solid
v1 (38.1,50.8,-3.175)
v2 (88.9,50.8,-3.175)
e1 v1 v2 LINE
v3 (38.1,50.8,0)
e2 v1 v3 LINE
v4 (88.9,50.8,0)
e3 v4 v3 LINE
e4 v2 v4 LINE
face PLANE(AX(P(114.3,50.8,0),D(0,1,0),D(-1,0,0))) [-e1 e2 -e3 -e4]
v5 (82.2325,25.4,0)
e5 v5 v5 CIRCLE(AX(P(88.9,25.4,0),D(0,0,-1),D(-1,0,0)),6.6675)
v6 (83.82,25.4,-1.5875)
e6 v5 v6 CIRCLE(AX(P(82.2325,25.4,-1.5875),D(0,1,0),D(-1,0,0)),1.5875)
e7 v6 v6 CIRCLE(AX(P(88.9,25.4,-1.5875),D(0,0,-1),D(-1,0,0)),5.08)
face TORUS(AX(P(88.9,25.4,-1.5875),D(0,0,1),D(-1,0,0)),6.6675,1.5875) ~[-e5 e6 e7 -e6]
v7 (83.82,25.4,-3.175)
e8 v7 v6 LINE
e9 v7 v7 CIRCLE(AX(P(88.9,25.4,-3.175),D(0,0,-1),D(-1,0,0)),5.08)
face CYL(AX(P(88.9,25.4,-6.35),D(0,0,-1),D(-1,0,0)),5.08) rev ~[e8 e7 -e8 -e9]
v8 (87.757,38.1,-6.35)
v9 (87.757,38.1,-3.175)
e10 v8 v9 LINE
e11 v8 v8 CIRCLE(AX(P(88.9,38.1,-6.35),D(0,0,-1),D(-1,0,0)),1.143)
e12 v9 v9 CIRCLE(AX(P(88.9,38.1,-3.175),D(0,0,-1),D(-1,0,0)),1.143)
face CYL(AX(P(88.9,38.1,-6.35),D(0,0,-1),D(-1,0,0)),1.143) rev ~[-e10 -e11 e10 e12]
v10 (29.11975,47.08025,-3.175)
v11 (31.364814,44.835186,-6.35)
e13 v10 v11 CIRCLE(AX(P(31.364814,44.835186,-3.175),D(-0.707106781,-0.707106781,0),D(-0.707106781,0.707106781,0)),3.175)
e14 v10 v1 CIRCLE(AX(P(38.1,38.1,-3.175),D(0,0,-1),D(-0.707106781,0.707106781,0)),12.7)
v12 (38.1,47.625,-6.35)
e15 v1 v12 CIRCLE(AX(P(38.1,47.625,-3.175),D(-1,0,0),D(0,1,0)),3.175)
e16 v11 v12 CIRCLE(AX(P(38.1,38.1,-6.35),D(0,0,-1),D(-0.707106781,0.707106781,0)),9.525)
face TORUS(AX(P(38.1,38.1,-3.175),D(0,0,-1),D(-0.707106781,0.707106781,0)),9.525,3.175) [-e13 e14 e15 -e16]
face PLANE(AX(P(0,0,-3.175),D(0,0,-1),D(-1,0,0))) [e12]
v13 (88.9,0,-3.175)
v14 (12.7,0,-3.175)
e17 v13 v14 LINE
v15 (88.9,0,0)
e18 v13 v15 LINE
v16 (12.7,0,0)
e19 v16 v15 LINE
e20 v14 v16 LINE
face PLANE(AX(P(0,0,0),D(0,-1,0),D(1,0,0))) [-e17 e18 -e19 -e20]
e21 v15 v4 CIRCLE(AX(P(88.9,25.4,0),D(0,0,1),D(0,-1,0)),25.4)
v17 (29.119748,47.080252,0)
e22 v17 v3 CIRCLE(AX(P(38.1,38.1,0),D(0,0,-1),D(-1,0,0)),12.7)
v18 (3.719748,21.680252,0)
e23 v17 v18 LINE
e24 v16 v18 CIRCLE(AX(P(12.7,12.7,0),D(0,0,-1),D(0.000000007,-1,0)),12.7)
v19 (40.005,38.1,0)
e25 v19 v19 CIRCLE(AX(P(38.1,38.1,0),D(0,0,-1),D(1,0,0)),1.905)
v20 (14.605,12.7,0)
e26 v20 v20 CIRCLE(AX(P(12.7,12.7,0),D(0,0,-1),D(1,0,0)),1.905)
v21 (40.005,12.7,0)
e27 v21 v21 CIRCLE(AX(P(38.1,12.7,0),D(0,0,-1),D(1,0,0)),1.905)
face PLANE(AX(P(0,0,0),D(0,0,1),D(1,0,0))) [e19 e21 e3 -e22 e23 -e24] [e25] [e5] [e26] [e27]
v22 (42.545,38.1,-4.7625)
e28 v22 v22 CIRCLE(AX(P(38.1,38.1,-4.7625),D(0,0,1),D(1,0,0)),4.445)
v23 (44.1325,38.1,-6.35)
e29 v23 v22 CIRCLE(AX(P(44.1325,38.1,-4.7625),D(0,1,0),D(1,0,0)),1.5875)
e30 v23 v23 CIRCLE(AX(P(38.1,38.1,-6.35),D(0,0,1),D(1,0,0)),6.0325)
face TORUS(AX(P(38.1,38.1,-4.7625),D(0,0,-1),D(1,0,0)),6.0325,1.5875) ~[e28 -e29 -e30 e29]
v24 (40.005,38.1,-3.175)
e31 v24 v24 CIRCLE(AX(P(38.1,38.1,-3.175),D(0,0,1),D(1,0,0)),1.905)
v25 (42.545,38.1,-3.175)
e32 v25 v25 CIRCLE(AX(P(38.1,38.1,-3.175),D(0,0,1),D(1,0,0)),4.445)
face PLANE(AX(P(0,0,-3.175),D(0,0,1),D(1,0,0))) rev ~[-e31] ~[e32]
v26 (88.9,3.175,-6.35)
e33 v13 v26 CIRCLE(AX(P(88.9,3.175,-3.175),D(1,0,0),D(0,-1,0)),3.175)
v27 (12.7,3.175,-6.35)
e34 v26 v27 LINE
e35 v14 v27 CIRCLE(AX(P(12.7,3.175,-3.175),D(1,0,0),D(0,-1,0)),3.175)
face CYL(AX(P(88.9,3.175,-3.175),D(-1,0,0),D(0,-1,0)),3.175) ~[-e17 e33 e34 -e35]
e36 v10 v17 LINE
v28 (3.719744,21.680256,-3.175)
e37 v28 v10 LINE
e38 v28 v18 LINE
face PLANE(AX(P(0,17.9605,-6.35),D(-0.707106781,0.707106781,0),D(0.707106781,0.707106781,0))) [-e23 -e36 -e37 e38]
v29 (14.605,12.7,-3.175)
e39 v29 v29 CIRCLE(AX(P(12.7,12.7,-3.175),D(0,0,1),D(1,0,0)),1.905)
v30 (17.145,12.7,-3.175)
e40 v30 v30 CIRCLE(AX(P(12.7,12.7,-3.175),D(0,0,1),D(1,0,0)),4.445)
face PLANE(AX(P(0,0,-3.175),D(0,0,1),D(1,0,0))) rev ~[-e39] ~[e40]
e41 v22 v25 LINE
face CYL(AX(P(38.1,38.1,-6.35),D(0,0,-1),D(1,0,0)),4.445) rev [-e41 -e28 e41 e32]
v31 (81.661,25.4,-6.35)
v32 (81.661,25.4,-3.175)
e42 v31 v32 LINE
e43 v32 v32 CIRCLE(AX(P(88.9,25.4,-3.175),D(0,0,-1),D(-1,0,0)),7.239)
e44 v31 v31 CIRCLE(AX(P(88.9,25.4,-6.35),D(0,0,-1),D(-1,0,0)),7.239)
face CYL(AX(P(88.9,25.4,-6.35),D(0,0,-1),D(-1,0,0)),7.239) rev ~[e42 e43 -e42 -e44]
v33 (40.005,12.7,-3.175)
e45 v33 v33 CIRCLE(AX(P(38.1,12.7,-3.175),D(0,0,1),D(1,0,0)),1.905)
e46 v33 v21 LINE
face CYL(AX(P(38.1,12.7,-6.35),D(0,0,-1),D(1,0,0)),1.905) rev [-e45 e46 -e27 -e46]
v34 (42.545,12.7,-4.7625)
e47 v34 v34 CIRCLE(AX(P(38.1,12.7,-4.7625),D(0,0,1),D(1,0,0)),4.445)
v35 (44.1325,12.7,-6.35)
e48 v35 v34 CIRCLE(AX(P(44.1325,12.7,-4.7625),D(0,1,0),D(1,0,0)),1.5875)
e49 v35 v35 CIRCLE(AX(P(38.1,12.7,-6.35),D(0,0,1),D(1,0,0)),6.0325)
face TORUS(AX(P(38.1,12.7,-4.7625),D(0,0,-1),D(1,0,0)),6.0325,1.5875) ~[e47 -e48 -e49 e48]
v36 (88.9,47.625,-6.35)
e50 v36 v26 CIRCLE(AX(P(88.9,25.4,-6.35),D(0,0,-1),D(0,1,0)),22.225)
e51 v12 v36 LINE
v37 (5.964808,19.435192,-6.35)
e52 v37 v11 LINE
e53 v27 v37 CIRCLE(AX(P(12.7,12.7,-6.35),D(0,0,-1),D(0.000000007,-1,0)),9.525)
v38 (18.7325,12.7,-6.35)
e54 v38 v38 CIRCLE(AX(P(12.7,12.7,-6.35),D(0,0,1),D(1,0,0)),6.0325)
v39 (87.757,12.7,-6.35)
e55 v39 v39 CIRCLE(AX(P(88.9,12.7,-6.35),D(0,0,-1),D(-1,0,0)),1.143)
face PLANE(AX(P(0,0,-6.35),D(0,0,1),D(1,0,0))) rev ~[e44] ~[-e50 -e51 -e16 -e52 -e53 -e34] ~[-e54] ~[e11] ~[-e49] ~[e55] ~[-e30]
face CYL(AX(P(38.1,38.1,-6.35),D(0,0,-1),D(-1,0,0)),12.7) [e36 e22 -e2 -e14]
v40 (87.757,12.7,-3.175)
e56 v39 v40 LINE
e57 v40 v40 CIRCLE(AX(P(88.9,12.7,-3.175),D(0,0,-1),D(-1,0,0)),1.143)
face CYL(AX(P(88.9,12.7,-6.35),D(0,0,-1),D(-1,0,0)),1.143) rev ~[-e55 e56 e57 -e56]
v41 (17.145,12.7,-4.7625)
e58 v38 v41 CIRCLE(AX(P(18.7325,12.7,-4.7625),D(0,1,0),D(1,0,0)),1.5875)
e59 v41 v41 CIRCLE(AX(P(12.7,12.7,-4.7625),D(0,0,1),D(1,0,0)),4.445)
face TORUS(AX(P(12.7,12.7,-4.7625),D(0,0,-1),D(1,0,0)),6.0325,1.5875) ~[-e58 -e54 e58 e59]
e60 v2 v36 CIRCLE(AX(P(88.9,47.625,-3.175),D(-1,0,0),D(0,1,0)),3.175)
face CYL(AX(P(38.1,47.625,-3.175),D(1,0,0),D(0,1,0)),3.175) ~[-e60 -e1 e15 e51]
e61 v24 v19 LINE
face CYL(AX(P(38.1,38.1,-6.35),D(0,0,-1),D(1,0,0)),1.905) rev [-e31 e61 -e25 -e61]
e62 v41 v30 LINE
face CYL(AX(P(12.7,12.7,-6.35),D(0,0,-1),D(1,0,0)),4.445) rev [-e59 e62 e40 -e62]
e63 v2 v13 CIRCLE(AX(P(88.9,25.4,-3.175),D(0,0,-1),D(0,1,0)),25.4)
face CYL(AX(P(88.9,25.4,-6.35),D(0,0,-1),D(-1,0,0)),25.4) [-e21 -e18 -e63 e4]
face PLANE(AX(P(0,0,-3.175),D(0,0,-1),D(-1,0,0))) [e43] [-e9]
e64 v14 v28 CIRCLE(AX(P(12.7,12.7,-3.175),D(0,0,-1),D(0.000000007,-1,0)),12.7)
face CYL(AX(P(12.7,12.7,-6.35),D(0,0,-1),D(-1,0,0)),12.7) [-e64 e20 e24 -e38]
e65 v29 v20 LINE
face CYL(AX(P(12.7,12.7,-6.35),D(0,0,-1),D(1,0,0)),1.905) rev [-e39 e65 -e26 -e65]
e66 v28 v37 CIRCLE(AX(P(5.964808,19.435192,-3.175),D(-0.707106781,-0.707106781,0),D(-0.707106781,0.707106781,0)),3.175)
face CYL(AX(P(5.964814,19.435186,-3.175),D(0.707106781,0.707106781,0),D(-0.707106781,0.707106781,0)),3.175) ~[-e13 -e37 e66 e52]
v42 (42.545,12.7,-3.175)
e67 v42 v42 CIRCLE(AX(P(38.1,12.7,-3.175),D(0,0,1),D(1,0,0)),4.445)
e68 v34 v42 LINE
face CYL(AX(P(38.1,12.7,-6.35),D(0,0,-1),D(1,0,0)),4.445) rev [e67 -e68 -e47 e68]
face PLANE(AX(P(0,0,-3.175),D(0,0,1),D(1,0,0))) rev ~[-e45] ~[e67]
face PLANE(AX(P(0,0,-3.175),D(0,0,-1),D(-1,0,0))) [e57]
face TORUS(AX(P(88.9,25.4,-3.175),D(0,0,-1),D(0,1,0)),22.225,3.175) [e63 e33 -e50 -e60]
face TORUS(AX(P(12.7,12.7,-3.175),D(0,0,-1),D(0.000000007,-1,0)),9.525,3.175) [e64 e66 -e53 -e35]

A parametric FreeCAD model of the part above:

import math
import FreeCAD as App
import Part
import Sketcher
Q = App.Units.Quantity


def edges_at(feature, points):
    """Names of the edges that pass closest to the given points."""
    edges = feature.Shape.Edges
    near = lambda p: min(range(len(edges)), key=lambda i: edges[i].distToShape(Part.Vertex(*p))[0])
    return sorted({f"Edge{near(p) + 1}" for p in points})

doc = App.newDocument("Part")
body = doc.addObject("PartDesign::Body", "Body")

# Sketch on XY plane
sketch1 = doc.addObject("Sketcher::SketchObject", "Sketch")
body.addObject(sketch1)
sketch1.AttachmentSupport = (doc.XY_Plane, [""])
sketch1.MapMode = "FlatFace"
sketch1.addGeometry([
    Part.LineSegment(App.Vector(0, 50.8, 0), App.Vector(0, 0, 0)),
    Part.LineSegment(App.Vector(0, 0, 0), App.Vector(114.3, 0, 0)),
    Part.LineSegment(App.Vector(114.3, 0, 0), App.Vector(114.3, 50.8, 0)),
    Part.LineSegment(App.Vector(114.3, 50.8, 0), App.Vector(0, 50.8, 0)),
], False)
sketch1.addConstraint([
    Sketcher.Constraint("Coincident", 0, 2, 1, 1),
    Sketcher.Constraint("Coincident", 1, 2, 2, 1),
    Sketcher.Constraint("Coincident", 2, 2, 3, 1),
    Sketcher.Constraint("Coincident", 3, 2, 0, 1),
    Sketcher.Constraint("Vertical", 0),
    Sketcher.Constraint("Horizontal", 1),
    Sketcher.Constraint("Vertical", 2),
    Sketcher.Constraint("Horizontal", 3),
    Sketcher.Constraint("Coincident", 0, 2, -1, 1),
    Sketcher.Constraint("DistanceY", 0, 2, 0, 1, Q("2 in")),
    Sketcher.Constraint("DistanceX", 1, 1, 1, 2, Q("4.5 in")),
])
pad1 = doc.addObject("PartDesign::Pad", "Pad")
body.addObject(pad1)
pad1.Profile = sketch1
pad1.Length = Q("0.25 in")
pad1.Reversed = True

# Sketch on XY plane
sketch2 = doc.addObject("Sketcher::SketchObject", "Sketch001")
body.addObject(sketch2)
sketch2.AttachmentSupport = (doc.XY_Plane, [""])
sketch2.MapMode = "FlatFace"
sketch2.AttachmentOffset = App.Placement(App.Vector(0, 0, -0.25 * 25.4), App.Rotation())
sketch2.addGeometry([
    Part.LineSegment(App.Vector(0, 17.9605, 0), App.Vector(32.8395, 50.8, 0)),  # 0
    Part.LineSegment(App.Vector(32.8395, 50.8, 0), App.Vector(0, 50.8, 0)),  # 1
    Part.LineSegment(App.Vector(0, 50.8, 0), App.Vector(0, 17.9605, 0)),  # 2
    Part.Circle(App.Vector(12.7, 12.7, 0), App.Vector(0, 0, 1), 1.905),  # 3
    Part.Circle(App.Vector(38.1, 12.7, 0), App.Vector(0, 0, 1), 1.905),  # 4
    Part.Circle(App.Vector(38.1, 38.1, 0), App.Vector(0, 0, 1), 1.905),  # 5
], False)
sketch2.addConstraint([
    Sketcher.Constraint("Coincident", 0, 2, 1, 1),
    Sketcher.Constraint("Coincident", 1, 2, 2, 1),
    Sketcher.Constraint("Coincident", 2, 2, 0, 1),
    Sketcher.Constraint("Horizontal", 1),
    Sketcher.Constraint("Vertical", 2),
    Sketcher.Constraint("Equal", 3, 4),
    Sketcher.Constraint("Equal", 4, 5),
    Sketcher.Constraint("PointOnObject", 1, 2, -2),
    Sketcher.Constraint("Horizontal", 3, 3, 4, 3),
    Sketcher.Constraint("Vertical", 4, 3, 5, 3),
    Sketcher.Constraint("Equal", 1, 2),
    Sketcher.Constraint("Diameter", 3, Q("0.15 in")),
    Sketcher.Constraint("DistanceX", 3, 3, 4, 3, Q("1 in")),
    Sketcher.Constraint("DistanceY", 4, 3, 5, 3, Q("1 in")),
    Sketcher.Constraint("DistanceX", -1, 1, 3, 3, Q("0.5 in")),
    Sketcher.Constraint("DistanceY", -1, 1, 3, 3, Q("0.5 in")),
    Sketcher.Constraint("DistanceY", 5, 3, 0, 2, Q("0.5 in")),
    Sketcher.Constraint("DistanceX", 1, 2, 1, 1, Q("1.2929 in")),
])
pocket1 = doc.addObject("PartDesign::Pocket", "Pocket")
body.addObject(pocket1)
pocket1.Profile = sketch2
pocket1.Type = "ThroughAll"
pocket1.Reversed = True

# Sketch on XY plane
sketch3 = doc.addObject("Sketcher::SketchObject", "Sketch002")
body.addObject(sketch3)
sketch3.AttachmentSupport = (doc.XY_Plane, [""])
sketch3.MapMode = "FlatFace"
sketch3.AttachmentOffset = App.Placement(App.Vector(0, 0, -0.25 * 25.4), App.Rotation())
sketch3.addGeometry([
    Part.Circle(App.Vector(12.7, 12.7, 0), App.Vector(0, 0, 1), 4.445),  # 0
    Part.Circle(App.Vector(12.7, 12.7, 0), App.Vector(0, 0, 1), 1.905),  # 1
    Part.Circle(App.Vector(38.1, 12.7, 0), App.Vector(0, 0, 1), 4.445),  # 2
    Part.Circle(App.Vector(38.1, 12.7, 0), App.Vector(0, 0, 1), 1.905),  # 3
    Part.Circle(App.Vector(38.1, 38.1, 0), App.Vector(0, 0, 1), 4.445),  # 4
    Part.Circle(App.Vector(38.1, 38.1, 0), App.Vector(0, 0, 1), 1.905),  # 5
], False)
sketch3.addConstraint([
    Sketcher.Constraint("Coincident", 1, 3, 0, 3),
    Sketcher.Constraint("Coincident", 3, 3, 2, 3),
    Sketcher.Constraint("Coincident", 5, 3, 4, 3),
    Sketcher.Constraint("Equal", 0, 2),
    Sketcher.Constraint("Equal", 1, 3),
    Sketcher.Constraint("Equal", 2, 4),
    Sketcher.Constraint("Equal", 3, 5),
    Sketcher.Constraint("Horizontal", 1, 3, 2, 3),
    Sketcher.Constraint("Vertical", 3, 3, 4, 3),
    Sketcher.Constraint("Diameter", 0, Q("0.35 in")),
    Sketcher.Constraint("Diameter", 1, Q("0.15 in")),
    Sketcher.Constraint("DistanceX", 0, 3, 2, 3, Q("1 in")),
    Sketcher.Constraint("DistanceY", 2, 3, 4, 3, Q("1 in")),
    Sketcher.Constraint("DistanceX", -1, 1, 0, 3, Q("0.5 in")),
    Sketcher.Constraint("DistanceY", -1, 1, 0, 3, Q("0.5 in")),
])
pocket2 = doc.addObject("PartDesign::Pocket", "Pocket001")
body.addObject(pocket2)
pocket2.Profile = sketch3
pocket2.Length = Q("0.125 in")
pocket2.Reversed = True

# Sketch on XY plane
sketch4 = doc.addObject("Sketcher::SketchObject", "Sketch003")
body.addObject(sketch4)
sketch4.AttachmentSupport = (doc.XY_Plane, [""])
sketch4.MapMode = "FlatFace"
sketch4.AttachmentOffset = App.Placement(App.Vector(0, 0, -0.25 * 25.4), App.Rotation())
sketch4.addGeometry(Part.Circle(App.Vector(88.9, 25.4, 0), App.Vector(0, 0, 1), 5.08), False)
sketch4.addConstraint([
    Sketcher.Constraint("Diameter", 0, Q("0.4 in")),
    Sketcher.Constraint("DistanceY", -1, 1, 0, 3, Q("1 in")),
    Sketcher.Constraint("DistanceX", -1, 1, 0, 3, Q("3.5 in")),
])
pocket3 = doc.addObject("PartDesign::Pocket", "Pocket002")
body.addObject(pocket3)
pocket3.Profile = sketch4
pocket3.Type = "ThroughAll"
pocket3.Reversed = True

# Sketch on XY plane
sketch5 = doc.addObject("Sketcher::SketchObject", "Sketch004")
body.addObject(sketch5)
sketch5.AttachmentSupport = (doc.XY_Plane, [""])
sketch5.MapMode = "FlatFace"
sketch5.AttachmentOffset = App.Placement(App.Vector(0, 0, -0.25 * 25.4), App.Rotation())
sketch5.addGeometry([
    Part.Circle(App.Vector(88.9, 25.4, 0), App.Vector(0, 0, 1), 7.239),
    Part.Circle(App.Vector(88.9, 25.4, 0), App.Vector(0, 0, 1), 5.08),
    Part.Circle(App.Vector(88.9, 38.1, 0), App.Vector(0, 0, 1), 1.143),
    Part.Circle(App.Vector(88.9, 12.7, 0), App.Vector(0, 0, 1), 1.143),
], False)
sketch5.addConstraint([
    Sketcher.Constraint("Coincident", 1, 3, 0, 3),
    Sketcher.Constraint("Equal", 2, 3),
    Sketcher.Constraint("Vertical", 1, 3, 2, 3),
    Sketcher.Constraint("Vertical", 2, 3, 3, 3),
    Sketcher.Constraint("Diameter", 1, Q("0.4 in")),
    Sketcher.Constraint("Diameter", 0, Q("0.57 in")),
    Sketcher.Constraint("Diameter", 2, Q("0.09 in")),
    Sketcher.Constraint("DistanceY", -1, 1, 0, 3, Q("1 in")),
    Sketcher.Constraint("DistanceY", 3, 3, 2, 3, Q("1 in")),
    Sketcher.Constraint("DistanceY", -1, 1, 3, 3, Q("0.5 in")),
    Sketcher.Constraint("DistanceX", -1, 1, 0, 3, Q("3.5 in")),
])
pocket4 = doc.addObject("PartDesign::Pocket", "Pocket003")
body.addObject(pocket4)
pocket4.Profile = sketch5
pocket4.Length = Q("0.125 in")
pocket4.Reversed = True

# Sketch on XY plane
sketch6 = doc.addObject("Sketcher::SketchObject", "Sketch005")
body.addObject(sketch6)
sketch6.AttachmentSupport = (doc.XY_Plane, [""])
sketch6.MapMode = "FlatFace"
sketch6.AttachmentOffset = App.Placement(App.Vector(0, 0, -0.25 * 25.4), App.Rotation())
sketch6.addGeometry([
    Part.LineSegment(App.Vector(0, 12.7, 0), App.Vector(0, 17.9605, 0)),  # 0
    Part.LineSegment(App.Vector(0, 17.9605, 0), App.Vector(3.71975, 21.68025, 0)),  # 1
    Part.ArcOfCircle(Part.Circle(App.Vector(12.7, 12.7, 0), App.Vector(0, 0, 1), 12.7), math.radians(135), math.radians(180)),  # 2
    Part.LineSegment(App.Vector(0, 0, 0), App.Vector(0, 12.7, 0)),  # 3
    Part.ArcOfCircle(Part.Circle(App.Vector(12.7, 12.7, 0), App.Vector(0, 0, 1), 12.7), math.radians(180), math.radians(270)),  # 4
    Part.LineSegment(App.Vector(12.7, 0, 0), App.Vector(0, 0, 0)),  # 5
    Part.ArcOfCircle(Part.Circle(App.Vector(38.1, 38.1, 0), App.Vector(0, 0, 1), 12.7), math.radians(90), math.radians(135)),  # 6
    Part.LineSegment(App.Vector(29.11975, 47.08025, 0), App.Vector(32.8395, 50.8, 0)),  # 7
    Part.LineSegment(App.Vector(32.8395, 50.8, 0), App.Vector(38.1, 50.8, 0)),  # 8
    Part.LineSegment(App.Vector(114.3, 0, 0), App.Vector(88.9, 0, 0)),  # 9
    Part.ArcOfCircle(Part.Circle(App.Vector(88.9, 25.4, 0), App.Vector(0, 0, 1), 25.4), math.radians(-90), math.radians(0)),  # 10
    Part.LineSegment(App.Vector(114.3, 25.4, 0), App.Vector(114.3, 0, 0)),  # 11
    Part.ArcOfCircle(Part.Circle(App.Vector(88.9, 25.4, 0), App.Vector(0, 0, 1), 25.4), math.radians(0), math.radians(90)),  # 12
    Part.LineSegment(App.Vector(88.9, 50.8, 0), App.Vector(114.3, 50.8, 0)),  # 13
    Part.LineSegment(App.Vector(114.3, 50.8, 0), App.Vector(114.3, 25.4, 0)),  # 14
], False)
sketch6.addConstraint([
    Sketcher.Constraint("Coincident", 0, 2, 1, 1),
    Sketcher.Constraint("Tangent", 1, 2, 2, 1),
    Sketcher.Constraint("Tangent", 2, 2, 0, 1),
    Sketcher.Constraint("Tangent", 3, 2, 4, 1),
    Sketcher.Constraint("Tangent", 4, 2, 5, 1),
    Sketcher.Constraint("Coincident", 5, 2, 3, 1),
    Sketcher.Constraint("Tangent", 6, 2, 7, 1),
    Sketcher.Constraint("Coincident", 7, 2, 8, 1),
    Sketcher.Constraint("Tangent", 8, 2, 6, 1),
    Sketcher.Constraint("Tangent", 9, 2, 10, 1),
    Sketcher.Constraint("Tangent", 10, 2, 11, 1),
    Sketcher.Constraint("Coincident", 11, 2, 9, 1),
    Sketcher.Constraint("Tangent", 12, 2, 13, 1),
    Sketcher.Constraint("Coincident", 13, 2, 14, 1),
    Sketcher.Constraint("Tangent", 14, 2, 12, 1),
    Sketcher.Constraint("Vertical", 0),
    Sketcher.Constraint("Vertical", 3),
    Sketcher.Constraint("Horizontal", 5),
    Sketcher.Constraint("Horizontal", 8),
    Sketcher.Constraint("Horizontal", 9),
    Sketcher.Constraint("Vertical", 11),
    Sketcher.Constraint("Horizontal", 13),
    Sketcher.Constraint("Vertical", 14),
    Sketcher.Constraint("Coincident", 5, 2, -1, 1),
    Sketcher.Constraint("Coincident", 4, 3, 2, 3),
    Sketcher.Constraint("Coincident", 12, 3, 10, 3),
    Sketcher.Constraint("Equal", 2, 4),
    Sketcher.Constraint("Equal", 4, 6),
    Sketcher.Constraint("Equal", 10, 12),
    Sketcher.Constraint("PointOnObject", 9, 2, -1),
    Sketcher.Constraint("Parallel", 1, 7),
    Sketcher.Constraint("Horizontal", 8, 2, 12, 2),
    Sketcher.Constraint("Equal", 8, 0),
    Sketcher.Constraint("Radius", 10, Q("1 in")),
    Sketcher.Constraint("Radius", 2, Q("0.5 in")),
    Sketcher.Constraint("DistanceX", 2, 3, 6, 3, Q("1 in")),
    Sketcher.Constraint("DistanceX", 6, 3, 10, 3, Q("2 in")),
])
pocket5 = doc.addObject("PartDesign::Pocket", "Pocket004")
body.addObject(pocket5)
pocket5.Profile = sketch6
pocket5.Type = "ThroughAll"
pocket5.Reversed = True
doc.recompute()

fillet = doc.addObject("PartDesign::Fillet", "Fillet")
body.addObject(fillet)
fillet.Base = (pocket5, edges_at(pocket5, [(33.655, 38.1, -6.35), (33.655, 12.7, -6.35), (8.255, 12.7, -6.35)]))
fillet.Radius = Q("0.0625 in")
doc.recompute()

fillet2 = doc.addObject("PartDesign::Fillet", "Fillet001")
body.addObject(fillet2)
fillet2.Base = (fillet, edges_at(fillet, [(93.98, 25.4, 0)]))
fillet2.Radius = Q("0.0625 in")
doc.recompute()

fillet3 = doc.addObject("PartDesign::Fillet", "Fillet002")
body.addObject(fillet3)
fillet3.Base = (fillet2, edges_at(fillet2, [
    (114.3, 25.4, -6.35),
    (50.8, 0, -6.35),
    (0.967, 7.84, -6.35),
    (16.42, 34.38, -6.35),
    (33.24, 49.833, -6.35),
    (63.5, 50.8, -6.35),
]))
fillet3.Radius = Q("0.125 in")

doc.recompute()
